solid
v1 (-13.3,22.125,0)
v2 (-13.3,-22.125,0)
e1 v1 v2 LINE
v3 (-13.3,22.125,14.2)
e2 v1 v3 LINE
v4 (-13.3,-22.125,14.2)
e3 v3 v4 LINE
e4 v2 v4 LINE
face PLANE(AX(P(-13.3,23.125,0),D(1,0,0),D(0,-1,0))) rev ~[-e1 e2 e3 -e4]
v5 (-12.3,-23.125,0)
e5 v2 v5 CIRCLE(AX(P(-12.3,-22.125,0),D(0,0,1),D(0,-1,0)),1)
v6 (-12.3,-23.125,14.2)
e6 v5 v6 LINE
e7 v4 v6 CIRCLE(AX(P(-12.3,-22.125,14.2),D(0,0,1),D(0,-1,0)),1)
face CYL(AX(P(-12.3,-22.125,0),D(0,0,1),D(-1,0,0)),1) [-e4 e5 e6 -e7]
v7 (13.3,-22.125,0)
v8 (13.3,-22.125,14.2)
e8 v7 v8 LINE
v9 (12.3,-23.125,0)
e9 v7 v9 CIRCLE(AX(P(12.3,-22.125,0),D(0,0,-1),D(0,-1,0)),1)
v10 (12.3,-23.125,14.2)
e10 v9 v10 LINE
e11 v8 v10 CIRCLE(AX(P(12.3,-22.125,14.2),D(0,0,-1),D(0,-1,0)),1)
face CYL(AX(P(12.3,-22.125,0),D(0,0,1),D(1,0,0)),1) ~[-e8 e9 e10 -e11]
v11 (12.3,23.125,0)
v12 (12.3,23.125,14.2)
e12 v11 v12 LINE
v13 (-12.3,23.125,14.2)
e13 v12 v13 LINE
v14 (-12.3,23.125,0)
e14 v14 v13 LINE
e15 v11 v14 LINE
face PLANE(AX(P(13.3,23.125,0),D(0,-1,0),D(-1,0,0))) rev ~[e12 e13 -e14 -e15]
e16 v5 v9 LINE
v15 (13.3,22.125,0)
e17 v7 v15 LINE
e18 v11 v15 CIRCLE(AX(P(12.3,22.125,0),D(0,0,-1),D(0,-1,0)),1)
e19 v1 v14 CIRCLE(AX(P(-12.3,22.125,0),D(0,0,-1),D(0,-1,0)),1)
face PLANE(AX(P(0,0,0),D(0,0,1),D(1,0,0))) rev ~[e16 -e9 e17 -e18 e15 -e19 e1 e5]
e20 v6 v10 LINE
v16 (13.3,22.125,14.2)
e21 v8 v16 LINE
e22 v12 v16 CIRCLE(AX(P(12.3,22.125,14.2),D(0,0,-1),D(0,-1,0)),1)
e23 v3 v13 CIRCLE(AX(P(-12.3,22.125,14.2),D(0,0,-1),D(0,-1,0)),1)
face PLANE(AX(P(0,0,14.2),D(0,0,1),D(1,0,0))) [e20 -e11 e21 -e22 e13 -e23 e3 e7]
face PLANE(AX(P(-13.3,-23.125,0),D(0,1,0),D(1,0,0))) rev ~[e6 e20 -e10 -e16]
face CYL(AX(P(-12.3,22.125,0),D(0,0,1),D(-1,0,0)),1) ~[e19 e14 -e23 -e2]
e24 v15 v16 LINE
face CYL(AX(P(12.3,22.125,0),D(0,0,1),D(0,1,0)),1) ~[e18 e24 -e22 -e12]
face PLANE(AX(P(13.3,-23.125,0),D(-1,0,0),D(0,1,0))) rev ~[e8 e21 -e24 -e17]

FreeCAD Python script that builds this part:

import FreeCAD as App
import Part
import Sketcher
from FreeCAD import Vector
Q = App.Units.Quantity


def edges_at(feature, points):
    """Names of the edges that pass closest to the given points."""
    edges = feature.Shape.Edges
    near = lambda p: min(range(len(edges)), key=lambda i: edges[i].distToShape(Part.Vertex(*p))[0])
    return sorted({f"Edge{near(p) + 1}" for p in points})


def add_polygon(sketch, points):
    """Adds a closed chain of lines whose ends are joined by coincident constraints."""
    first, n = sketch.GeometryCount, len(points)
    for a, b in zip(points, points[1:] + points[:1]):
        sketch.addGeometry(Part.LineSegment(App.Vector(*a, 0), App.Vector(*b, 0)), False)
    for i in range(n):
        sketch.addConstraint(Sketcher.Constraint("Coincident", first + i, 2, first + (i + 1) % n, 1))

doc = App.newDocument("Part")
body = doc.addObject("PartDesign::Body", "Body")

sketch1 = body.newObject("Sketcher::SketchObject", "Sketch")
sketch1.AttachmentSupport = (doc.getObject("XY_Plane"), [""])
sketch1.MapMode = "FlatFace"
add_polygon(sketch1, [(-13, 23), (-13, -23), (13, -23), (13, 23)])
sketch1.addConstraint(Sketcher.Constraint("Vertical", 0))
sketch1.addConstraint(Sketcher.Constraint("Horizontal", 1))
sketch1.addConstraint(Sketcher.Constraint("Vertical", 2))
sketch1.addConstraint(Sketcher.Constraint("Horizontal", 3))
sketch1.addConstraint(Sketcher.Constraint("Symmetric", 0, 2, 2, 2, -1, 1))
sketch1.addConstraint(Sketcher.Constraint("DistanceX", 1, 1, 1, 2, Q("26.6 mm")))
sketch1.addConstraint(Sketcher.Constraint("DistanceY", 0, 2, 0, 1, Q("46.25 mm")))
pad1 = body.newObject("PartDesign::Pad", "Pad")
pad1.Profile = sketch1
pad1.Length = 14.2
doc.recompute()

fillet = body.newObject("PartDesign::Fillet", "Fillet")
fillet.Base = (pad1, edges_at(pad1, [
    (13.3, -23.125, 7.1),
    (-13.3, -23.125, 7.1),
    (13.3, 23.125, 7.1),
    (-13.3, 23.125, 7.1),
]))
fillet.Radius = 1

doc.recompute()
